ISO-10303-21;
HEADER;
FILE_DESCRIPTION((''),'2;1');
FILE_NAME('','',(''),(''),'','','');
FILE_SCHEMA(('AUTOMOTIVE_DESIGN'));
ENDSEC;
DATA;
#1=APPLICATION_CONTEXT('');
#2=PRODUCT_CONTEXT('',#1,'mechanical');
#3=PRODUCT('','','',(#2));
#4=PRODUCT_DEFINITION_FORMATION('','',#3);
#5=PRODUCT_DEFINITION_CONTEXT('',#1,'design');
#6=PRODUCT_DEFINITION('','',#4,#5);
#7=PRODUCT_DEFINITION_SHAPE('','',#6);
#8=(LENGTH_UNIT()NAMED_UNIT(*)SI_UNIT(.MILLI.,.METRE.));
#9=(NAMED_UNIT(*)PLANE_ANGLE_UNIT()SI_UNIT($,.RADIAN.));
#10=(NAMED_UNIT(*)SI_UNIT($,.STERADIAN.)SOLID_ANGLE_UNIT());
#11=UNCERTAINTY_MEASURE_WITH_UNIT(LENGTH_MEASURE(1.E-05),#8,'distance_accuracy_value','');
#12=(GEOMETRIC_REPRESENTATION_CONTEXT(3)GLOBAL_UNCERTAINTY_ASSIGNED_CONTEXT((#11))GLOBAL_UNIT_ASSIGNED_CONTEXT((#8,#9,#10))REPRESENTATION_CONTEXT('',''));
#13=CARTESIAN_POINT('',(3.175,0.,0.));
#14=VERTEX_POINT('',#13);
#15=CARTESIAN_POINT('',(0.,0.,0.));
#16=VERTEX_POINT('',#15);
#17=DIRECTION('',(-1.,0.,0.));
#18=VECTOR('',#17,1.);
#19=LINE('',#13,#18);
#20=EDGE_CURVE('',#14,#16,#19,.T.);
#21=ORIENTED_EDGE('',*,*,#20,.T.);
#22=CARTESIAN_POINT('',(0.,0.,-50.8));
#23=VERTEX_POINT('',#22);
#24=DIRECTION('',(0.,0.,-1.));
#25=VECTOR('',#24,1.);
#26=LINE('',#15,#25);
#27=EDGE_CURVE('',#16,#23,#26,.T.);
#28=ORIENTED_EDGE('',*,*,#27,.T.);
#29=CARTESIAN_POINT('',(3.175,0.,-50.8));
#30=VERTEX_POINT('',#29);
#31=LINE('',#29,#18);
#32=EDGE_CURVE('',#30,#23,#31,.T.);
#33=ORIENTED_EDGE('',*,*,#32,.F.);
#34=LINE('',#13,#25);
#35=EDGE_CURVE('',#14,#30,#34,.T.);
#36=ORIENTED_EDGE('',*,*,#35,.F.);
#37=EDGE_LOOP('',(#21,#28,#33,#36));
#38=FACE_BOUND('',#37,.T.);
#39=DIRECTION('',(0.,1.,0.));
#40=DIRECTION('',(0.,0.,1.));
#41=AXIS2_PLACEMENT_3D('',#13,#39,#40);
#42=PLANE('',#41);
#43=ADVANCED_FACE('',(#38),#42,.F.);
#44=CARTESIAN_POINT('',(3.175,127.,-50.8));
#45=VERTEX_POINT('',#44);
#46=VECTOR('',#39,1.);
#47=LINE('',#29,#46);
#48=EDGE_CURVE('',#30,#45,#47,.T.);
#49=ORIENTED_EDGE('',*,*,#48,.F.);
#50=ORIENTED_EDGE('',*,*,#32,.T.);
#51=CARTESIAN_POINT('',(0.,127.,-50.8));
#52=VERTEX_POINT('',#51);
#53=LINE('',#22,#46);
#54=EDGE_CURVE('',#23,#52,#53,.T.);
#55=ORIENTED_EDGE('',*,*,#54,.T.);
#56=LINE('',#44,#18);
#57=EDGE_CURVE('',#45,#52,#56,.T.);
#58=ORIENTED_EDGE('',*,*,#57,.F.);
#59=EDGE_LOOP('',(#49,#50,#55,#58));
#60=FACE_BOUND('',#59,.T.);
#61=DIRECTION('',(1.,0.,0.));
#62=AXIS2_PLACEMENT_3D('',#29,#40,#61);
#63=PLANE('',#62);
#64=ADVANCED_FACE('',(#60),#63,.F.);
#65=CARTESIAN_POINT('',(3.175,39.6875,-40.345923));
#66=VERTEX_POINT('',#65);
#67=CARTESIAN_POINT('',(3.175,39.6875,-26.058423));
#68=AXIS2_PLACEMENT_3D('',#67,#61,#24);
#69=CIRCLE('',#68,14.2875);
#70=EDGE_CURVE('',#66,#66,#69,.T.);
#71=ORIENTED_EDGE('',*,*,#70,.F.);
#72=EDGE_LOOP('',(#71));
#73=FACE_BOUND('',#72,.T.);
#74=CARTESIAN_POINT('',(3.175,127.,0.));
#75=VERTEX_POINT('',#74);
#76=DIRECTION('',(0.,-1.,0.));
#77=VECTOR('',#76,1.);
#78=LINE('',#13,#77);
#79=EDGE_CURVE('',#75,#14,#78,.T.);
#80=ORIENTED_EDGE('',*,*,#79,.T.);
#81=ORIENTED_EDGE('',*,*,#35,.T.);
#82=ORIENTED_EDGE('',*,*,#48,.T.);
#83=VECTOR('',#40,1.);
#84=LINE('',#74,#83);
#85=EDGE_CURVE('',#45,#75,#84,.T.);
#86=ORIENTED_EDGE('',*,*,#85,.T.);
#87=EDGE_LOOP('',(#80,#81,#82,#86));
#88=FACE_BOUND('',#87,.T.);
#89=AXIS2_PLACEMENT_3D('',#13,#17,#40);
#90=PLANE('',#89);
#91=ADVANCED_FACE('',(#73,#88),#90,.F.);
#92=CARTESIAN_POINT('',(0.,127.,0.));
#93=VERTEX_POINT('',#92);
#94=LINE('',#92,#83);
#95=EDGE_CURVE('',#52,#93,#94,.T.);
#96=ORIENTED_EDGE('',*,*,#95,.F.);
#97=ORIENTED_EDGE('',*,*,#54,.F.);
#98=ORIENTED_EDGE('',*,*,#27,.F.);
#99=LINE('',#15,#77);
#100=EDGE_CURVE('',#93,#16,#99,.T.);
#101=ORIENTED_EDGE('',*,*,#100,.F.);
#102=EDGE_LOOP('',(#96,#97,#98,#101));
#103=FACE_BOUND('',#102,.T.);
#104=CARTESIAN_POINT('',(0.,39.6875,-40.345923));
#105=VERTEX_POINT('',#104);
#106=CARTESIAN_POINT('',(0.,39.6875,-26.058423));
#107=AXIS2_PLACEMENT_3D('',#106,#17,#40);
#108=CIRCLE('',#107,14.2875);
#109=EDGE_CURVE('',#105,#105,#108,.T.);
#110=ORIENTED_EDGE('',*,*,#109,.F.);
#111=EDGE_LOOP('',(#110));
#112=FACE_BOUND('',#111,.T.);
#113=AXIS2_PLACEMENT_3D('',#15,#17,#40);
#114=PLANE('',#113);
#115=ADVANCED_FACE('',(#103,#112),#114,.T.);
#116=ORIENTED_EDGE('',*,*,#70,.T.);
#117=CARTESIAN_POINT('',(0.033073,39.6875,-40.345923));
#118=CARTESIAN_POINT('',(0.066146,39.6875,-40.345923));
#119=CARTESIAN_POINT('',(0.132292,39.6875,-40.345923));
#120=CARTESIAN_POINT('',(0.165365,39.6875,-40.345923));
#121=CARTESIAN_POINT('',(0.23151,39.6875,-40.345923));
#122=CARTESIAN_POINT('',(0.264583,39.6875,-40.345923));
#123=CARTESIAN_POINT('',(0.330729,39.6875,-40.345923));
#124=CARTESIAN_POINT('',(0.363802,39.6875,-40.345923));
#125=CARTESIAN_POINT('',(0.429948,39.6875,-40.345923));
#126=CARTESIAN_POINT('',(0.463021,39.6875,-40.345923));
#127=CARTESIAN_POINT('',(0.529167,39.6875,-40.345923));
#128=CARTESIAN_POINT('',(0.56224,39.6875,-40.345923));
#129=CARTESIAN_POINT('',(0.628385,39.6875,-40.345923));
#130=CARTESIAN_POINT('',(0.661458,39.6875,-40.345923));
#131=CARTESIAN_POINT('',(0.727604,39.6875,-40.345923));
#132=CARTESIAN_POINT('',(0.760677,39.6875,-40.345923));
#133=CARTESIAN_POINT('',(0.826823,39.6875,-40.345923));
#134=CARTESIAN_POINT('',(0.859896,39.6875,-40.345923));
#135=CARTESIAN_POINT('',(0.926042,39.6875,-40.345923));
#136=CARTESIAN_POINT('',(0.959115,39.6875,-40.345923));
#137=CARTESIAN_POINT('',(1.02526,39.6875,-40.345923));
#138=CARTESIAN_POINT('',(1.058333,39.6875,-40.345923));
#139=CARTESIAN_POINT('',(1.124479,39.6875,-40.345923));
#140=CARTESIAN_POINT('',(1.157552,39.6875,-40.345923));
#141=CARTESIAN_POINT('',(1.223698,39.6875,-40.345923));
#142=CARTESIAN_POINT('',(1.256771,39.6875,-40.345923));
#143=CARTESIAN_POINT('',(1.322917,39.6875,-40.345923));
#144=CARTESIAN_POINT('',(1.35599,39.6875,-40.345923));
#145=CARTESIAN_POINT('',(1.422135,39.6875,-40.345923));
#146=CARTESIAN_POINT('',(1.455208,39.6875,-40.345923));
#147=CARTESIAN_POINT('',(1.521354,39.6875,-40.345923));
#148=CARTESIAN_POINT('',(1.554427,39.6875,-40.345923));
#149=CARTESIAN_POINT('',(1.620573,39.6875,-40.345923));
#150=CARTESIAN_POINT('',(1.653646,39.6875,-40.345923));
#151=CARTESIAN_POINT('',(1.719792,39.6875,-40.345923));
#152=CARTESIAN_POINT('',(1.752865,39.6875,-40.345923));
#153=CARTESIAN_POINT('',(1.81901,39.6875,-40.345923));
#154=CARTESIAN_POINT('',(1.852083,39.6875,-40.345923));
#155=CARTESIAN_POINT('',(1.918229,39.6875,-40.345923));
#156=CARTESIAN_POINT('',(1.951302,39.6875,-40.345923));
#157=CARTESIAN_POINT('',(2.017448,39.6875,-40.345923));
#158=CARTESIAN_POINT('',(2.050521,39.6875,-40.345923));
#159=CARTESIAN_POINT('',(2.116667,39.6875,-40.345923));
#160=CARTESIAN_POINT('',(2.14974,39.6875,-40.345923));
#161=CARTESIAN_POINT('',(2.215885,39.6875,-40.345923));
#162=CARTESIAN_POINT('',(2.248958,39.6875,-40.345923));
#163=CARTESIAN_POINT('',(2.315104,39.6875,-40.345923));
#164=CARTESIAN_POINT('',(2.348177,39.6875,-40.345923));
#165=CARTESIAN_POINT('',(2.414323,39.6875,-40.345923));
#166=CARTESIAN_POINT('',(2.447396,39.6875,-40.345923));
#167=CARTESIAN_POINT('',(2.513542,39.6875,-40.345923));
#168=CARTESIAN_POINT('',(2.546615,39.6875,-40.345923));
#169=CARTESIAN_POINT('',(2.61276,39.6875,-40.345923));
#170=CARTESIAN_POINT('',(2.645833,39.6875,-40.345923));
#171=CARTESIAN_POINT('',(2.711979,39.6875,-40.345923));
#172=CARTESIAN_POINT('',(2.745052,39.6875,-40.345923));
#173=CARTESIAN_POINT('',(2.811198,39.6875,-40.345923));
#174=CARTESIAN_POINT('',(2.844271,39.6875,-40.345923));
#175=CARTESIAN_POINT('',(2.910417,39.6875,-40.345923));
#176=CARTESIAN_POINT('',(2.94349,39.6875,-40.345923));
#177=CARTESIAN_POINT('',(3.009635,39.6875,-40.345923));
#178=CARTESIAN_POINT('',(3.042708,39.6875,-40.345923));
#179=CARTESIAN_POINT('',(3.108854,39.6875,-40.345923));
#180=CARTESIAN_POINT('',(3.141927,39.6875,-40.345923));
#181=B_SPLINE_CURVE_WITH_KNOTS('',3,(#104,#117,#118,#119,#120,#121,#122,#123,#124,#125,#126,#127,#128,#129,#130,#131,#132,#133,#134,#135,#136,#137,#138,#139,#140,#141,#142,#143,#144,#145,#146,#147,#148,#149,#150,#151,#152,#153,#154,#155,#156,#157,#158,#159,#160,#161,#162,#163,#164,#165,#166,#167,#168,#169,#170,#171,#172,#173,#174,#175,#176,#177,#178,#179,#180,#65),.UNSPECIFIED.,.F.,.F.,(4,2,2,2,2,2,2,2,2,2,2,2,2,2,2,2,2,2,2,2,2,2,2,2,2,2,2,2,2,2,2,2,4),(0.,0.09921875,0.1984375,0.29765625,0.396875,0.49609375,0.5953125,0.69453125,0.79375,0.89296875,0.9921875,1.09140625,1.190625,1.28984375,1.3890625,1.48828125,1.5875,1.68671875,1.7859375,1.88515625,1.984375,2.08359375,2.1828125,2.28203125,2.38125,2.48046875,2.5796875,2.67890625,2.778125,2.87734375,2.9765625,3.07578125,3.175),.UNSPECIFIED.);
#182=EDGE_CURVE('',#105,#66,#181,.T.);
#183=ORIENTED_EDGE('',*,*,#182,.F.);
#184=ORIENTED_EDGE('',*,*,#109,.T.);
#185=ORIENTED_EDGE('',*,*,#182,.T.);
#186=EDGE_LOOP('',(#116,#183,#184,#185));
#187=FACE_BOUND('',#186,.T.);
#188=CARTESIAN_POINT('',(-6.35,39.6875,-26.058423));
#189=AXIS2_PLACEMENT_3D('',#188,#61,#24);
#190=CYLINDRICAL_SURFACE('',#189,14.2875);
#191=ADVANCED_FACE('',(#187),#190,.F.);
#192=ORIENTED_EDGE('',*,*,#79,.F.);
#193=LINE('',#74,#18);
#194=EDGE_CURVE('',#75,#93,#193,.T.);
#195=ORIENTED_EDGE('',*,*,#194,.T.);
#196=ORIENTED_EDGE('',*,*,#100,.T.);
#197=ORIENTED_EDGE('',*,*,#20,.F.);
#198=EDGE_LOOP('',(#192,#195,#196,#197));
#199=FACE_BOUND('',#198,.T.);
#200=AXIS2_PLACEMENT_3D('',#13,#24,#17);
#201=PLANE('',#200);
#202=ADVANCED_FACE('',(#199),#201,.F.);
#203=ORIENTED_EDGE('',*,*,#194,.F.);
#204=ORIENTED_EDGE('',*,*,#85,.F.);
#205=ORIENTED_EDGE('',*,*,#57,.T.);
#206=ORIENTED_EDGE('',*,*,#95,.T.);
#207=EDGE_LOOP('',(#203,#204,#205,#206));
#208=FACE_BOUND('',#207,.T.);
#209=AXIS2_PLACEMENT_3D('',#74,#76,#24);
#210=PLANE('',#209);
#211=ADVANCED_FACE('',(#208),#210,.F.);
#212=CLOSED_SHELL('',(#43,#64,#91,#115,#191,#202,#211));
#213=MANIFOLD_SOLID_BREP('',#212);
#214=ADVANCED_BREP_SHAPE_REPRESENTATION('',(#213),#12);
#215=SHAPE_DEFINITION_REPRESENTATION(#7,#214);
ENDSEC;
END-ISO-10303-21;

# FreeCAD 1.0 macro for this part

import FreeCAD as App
import Part
import Sketcher
from FreeCAD import Vector
Q = App.Units.Quantity


def add_polygon(sketch, points):
    """Adds a closed chain of lines whose ends are joined by coincident constraints."""
    first, n = sketch.GeometryCount, len(points)
    for a, b in zip(points, points[1:] + points[:1]):
        sketch.addGeometry(Part.LineSegment(App.Vector(*a, 0), App.Vector(*b, 0)), False)
    for i in range(n):
        sketch.addConstraint(Sketcher.Constraint("Coincident", first + i, 2, first + (i + 1) % n, 1))

doc = App.newDocument("Part")
body = doc.addObject("PartDesign::Body", "Body")

sketch1 = body.newObject("Sketcher::SketchObject", "Sketch")
sketch1.AttachmentSupport = (doc.getObject("YZ_Plane"), [""])
sketch1.MapMode = "FlatFace"
add_polygon(sketch1, [(127, 0), (0, 0), (0, -51), (127, -51)])
sketch1.addConstraint([
    Sketcher.Constraint("Horizontal", 0),
    Sketcher.Constraint("Vertical", 1),
    Sketcher.Constraint("Horizontal", 2),
    Sketcher.Constraint("Vertical", 3),
    Sketcher.Constraint("Coincident", 0, 2, -1, 1),
    Sketcher.Constraint("DistanceX", 0, 2, 0, 1, Q("5 in")),
    Sketcher.Constraint("DistanceY", 1, 2, 1, 1, Q("2 in")),
])
pad1 = body.newObject("PartDesign::Pad", "Pad")
pad1.Profile = sketch1
pad1.Length = Q("0.125 in")

sketch2 = body.newObject("Sketcher::SketchObject", "Sketch001")
sketch2.AttachmentSupport = (doc.getObject("YZ_Plane"), [""])
sketch2.MapMode = "FlatFace"
sketch2.AttachmentOffset = App.Placement(Vector(0, 0, 0.125 * 25.4), App.Rotation())
sketch2.addGeometry(Part.Circle(Vector(40, -26, 0), Vector(0, 0, 1), 14), False)
sketch2.addConstraint([
    Sketcher.Constraint("Diameter", 0, Q("1.125 in")),
    Sketcher.Constraint("DistanceX", -1, 1, 0, 3, Q("1.5625 in")),
    Sketcher.Constraint("DistanceY", 0, 3, -1, 1, Q("26.058423 mm")),
])
pocket1 = body.newObject("PartDesign::Pocket", "Pocket")
pocket1.Profile = sketch2
pocket1.Length = Q("0.375 in")

doc.recompute()
